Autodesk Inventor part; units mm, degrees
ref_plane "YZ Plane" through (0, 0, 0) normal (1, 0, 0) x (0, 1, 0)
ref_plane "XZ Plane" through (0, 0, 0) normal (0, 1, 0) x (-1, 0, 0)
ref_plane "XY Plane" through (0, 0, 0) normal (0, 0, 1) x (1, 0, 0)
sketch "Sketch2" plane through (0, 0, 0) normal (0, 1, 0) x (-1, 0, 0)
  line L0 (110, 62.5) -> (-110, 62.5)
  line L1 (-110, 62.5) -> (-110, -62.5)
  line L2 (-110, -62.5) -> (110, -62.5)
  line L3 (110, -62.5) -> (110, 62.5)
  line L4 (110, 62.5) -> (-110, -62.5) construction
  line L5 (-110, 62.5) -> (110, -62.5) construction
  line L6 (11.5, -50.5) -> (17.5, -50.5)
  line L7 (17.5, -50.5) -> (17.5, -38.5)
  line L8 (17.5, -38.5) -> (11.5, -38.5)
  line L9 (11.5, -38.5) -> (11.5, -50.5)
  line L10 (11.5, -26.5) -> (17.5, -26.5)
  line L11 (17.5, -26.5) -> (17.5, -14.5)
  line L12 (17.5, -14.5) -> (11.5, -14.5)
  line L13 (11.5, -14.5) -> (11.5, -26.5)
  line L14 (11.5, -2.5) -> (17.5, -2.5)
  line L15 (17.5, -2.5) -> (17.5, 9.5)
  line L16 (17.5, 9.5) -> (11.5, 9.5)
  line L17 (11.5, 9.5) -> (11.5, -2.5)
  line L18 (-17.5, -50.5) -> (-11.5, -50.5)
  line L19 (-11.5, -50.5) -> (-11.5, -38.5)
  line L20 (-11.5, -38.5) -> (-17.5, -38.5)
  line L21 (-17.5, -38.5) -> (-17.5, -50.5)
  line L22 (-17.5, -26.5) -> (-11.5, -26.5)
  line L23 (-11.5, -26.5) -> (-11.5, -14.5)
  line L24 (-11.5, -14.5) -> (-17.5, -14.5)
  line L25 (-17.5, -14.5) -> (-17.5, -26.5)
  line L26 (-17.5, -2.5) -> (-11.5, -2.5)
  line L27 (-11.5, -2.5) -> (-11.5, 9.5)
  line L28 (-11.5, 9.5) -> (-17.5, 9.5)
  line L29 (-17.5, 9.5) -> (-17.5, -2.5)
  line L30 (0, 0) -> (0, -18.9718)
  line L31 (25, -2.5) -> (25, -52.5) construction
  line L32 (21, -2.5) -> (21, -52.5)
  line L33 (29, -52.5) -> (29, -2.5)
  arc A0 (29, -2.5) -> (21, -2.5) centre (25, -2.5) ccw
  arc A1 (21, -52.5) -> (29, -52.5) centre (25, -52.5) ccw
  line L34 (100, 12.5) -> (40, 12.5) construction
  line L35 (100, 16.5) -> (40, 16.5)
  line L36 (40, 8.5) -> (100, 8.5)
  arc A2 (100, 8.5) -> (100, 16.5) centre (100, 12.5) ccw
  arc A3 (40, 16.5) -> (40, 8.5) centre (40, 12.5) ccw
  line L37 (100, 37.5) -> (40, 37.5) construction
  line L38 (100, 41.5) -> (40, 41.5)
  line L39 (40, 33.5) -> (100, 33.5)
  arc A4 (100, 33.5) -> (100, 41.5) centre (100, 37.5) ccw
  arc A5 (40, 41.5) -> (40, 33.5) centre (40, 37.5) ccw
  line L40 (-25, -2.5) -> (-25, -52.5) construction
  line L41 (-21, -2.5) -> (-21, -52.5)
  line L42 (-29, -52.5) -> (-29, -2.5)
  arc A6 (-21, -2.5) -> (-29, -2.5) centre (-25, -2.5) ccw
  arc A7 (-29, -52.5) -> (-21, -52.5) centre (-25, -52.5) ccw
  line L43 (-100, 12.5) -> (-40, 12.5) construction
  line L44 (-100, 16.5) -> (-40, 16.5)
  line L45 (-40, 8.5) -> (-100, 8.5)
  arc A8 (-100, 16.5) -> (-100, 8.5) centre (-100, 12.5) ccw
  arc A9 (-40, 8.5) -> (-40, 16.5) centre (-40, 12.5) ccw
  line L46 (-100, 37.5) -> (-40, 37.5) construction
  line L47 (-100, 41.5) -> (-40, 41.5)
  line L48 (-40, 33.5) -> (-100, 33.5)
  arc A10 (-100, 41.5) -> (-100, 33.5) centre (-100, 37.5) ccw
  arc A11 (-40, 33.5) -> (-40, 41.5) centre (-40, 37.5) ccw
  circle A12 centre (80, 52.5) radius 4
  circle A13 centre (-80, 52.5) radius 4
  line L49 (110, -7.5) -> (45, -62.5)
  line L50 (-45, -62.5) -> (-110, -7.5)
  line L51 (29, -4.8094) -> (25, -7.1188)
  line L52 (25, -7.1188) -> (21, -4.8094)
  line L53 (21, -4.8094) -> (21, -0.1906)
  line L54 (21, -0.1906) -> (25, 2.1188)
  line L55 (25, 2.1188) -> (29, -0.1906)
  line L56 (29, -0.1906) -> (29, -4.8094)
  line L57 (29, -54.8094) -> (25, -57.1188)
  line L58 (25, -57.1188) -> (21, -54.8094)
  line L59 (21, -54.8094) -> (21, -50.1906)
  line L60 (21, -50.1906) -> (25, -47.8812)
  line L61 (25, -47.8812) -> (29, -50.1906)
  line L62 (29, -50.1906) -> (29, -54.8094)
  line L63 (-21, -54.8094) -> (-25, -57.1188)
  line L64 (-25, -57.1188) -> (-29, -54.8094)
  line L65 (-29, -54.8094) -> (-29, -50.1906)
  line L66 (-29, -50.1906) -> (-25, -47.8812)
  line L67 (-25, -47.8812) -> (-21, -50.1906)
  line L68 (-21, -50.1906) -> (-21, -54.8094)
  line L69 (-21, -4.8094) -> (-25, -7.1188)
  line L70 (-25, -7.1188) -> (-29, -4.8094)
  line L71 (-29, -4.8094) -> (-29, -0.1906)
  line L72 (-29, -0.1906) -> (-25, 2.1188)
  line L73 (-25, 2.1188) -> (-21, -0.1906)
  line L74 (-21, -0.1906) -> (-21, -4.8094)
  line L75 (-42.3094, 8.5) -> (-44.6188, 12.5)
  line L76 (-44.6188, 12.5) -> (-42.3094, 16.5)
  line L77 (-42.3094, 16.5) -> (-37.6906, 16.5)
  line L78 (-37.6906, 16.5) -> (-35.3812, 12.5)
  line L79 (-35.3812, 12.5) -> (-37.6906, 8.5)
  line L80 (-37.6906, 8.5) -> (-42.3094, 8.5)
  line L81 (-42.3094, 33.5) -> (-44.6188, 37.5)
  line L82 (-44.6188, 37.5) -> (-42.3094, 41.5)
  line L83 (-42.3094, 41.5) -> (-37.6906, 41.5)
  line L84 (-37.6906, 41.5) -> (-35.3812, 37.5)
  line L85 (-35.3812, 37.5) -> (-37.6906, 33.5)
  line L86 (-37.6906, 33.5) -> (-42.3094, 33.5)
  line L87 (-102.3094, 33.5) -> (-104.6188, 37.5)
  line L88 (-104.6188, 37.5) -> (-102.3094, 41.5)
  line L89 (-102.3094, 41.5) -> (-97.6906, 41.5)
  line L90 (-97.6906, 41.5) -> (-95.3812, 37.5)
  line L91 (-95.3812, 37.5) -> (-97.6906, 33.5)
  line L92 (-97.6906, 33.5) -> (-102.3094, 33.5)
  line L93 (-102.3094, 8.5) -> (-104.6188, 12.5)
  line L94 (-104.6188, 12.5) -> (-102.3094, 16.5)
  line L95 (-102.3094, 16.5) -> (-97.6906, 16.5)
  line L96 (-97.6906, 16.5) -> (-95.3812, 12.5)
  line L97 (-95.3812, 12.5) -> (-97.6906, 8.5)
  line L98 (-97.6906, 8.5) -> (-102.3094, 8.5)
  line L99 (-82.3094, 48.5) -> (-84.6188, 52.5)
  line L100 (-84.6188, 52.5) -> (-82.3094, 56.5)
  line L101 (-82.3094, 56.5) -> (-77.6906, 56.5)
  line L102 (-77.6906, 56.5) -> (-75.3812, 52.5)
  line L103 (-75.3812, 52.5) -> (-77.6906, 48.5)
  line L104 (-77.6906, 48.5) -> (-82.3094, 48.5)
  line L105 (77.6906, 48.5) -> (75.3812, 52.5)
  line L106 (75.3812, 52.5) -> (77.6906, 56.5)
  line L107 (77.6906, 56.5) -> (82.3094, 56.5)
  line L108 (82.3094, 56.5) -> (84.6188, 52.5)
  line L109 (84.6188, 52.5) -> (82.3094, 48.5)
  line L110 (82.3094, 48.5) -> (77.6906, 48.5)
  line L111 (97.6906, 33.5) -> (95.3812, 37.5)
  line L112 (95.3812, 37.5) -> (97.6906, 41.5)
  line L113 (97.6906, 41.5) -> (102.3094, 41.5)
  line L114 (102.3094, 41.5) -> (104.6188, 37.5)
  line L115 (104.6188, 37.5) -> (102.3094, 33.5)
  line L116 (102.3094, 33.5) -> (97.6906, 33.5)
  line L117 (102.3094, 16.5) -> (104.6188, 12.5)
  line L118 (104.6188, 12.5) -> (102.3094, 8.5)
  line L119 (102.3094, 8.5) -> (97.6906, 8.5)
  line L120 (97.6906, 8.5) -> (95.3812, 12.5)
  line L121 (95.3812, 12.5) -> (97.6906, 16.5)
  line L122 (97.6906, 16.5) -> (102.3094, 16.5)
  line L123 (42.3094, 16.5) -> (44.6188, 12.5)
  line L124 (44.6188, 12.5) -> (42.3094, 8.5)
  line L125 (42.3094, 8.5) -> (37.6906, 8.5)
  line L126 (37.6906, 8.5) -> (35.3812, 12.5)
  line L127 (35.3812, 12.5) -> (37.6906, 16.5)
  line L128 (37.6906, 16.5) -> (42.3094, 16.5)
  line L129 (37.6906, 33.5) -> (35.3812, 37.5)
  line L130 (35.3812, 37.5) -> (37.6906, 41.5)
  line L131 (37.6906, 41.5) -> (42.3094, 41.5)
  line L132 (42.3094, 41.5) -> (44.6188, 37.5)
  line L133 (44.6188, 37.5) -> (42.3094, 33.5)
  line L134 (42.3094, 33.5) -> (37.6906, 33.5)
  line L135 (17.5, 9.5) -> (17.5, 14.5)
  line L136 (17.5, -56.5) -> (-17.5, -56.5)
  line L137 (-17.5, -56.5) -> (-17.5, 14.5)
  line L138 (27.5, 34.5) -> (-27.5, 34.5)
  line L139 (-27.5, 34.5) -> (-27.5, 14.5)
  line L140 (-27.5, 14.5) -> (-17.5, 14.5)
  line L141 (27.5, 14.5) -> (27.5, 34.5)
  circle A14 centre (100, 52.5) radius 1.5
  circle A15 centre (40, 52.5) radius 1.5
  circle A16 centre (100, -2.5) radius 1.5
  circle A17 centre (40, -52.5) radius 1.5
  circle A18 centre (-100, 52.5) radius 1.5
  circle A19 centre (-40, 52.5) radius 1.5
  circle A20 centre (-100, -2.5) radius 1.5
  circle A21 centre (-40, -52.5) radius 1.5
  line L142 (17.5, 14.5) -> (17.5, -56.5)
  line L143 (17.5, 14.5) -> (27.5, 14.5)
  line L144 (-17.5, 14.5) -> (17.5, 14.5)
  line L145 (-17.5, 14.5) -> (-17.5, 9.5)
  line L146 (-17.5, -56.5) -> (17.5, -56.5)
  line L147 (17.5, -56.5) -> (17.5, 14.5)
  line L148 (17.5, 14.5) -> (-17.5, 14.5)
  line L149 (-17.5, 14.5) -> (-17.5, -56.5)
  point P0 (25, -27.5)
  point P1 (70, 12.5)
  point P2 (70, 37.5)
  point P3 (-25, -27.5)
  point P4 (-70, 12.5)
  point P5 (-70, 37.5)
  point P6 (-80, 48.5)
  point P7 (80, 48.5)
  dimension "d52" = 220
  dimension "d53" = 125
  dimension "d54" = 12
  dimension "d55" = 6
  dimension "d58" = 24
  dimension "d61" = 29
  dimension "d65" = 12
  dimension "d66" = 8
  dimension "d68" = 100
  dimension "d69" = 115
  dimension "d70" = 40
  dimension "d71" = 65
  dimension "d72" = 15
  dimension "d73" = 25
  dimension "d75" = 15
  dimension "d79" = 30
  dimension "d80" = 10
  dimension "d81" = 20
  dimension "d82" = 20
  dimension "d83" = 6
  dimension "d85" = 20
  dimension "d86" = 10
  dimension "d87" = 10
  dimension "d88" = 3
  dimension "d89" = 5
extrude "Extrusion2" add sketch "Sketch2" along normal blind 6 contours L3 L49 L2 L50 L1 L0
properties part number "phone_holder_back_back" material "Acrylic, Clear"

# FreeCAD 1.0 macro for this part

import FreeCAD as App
import Part
import Sketcher
from FreeCAD import Vector
Q = App.Units.Quantity


def add_polygon(sketch, points):
    """Adds a closed chain of lines whose ends are joined by coincident constraints."""
    first, n = sketch.GeometryCount, len(points)
    for a, b in zip(points, points[1:] + points[:1]):
        sketch.addGeometry(Part.LineSegment(App.Vector(*a, 0), App.Vector(*b, 0)), False)
    for i in range(n):
        sketch.addConstraint(Sketcher.Constraint("Coincident", first + i, 2, first + (i + 1) % n, 1))

doc = App.newDocument("Part")
params = doc.addObject("Spreadsheet::Sheet", "Params")
for row, (alias, value) in enumerate([
    ("sketch1_diameter", "3 mm"),
    ("sketch1_width", "220 mm"),
    ("sketch1_width2", "10 mm"),
    ("sketch1_height", "20 mm"),
    ("sketch1_width3", "90 mm"),
    ("pad1_length", "6 mm"),
], start=1):
    params.set(f"A{row}", alias)
    params.set(f"B{row}", "=" + value)
    params.setAlias(f"B{row}", alias)

body = doc.addObject("PartDesign::Body", "Body")

sketch1 = body.newObject("Sketcher::SketchObject", "Sketch")
sketch1.AttachmentSupport = (doc.getObject("XZ_Plane"), [""])
sketch1.MapMode = "FlatFace"
add_polygon(sketch1, [(-110, -7.5), (-110, 62.5), (110, 62.5), (110, -7.5), (45, -62.5), (-45, -62.5)])
sketch1.addGeometry(Part.Circle(Vector(40, -52.5, 0), Vector(0, 0, 1), 1.5), False)
sketch1.addGeometry(Part.Circle(Vector(100, -2.5, 0), Vector(0, 0, 1), 1.5), False)
add_polygon(sketch1, [(21, -0.2), (21, -54.8), (25, -57.1), (29, -54.8), (29, -0.2), (25, 2.1)])
sketch1.addGeometry(Part.Circle(Vector(-40, -52.5, 0), Vector(0, 0, 1), 1.5), False)
add_polygon(sketch1, [(-21, -54.8), (-21, -0.2), (-25, 2.1), (-29, -0.2), (-29, -54.8), (-25, -57.1)])
add_polygon(sketch1, [(-17.5, 14.5), (-17.5, -56.5), (17.5, -56.5), (17.5, 14.5), (27.5, 14.5), (27.5, 34.5), (-27.5, 34.5), (-27.5, 14.5)])
sketch1.addGeometry(Part.Circle(Vector(-100, -2.5, 0), Vector(0, 0, 1), 1.5), False)
add_polygon(sketch1, [(102.3, 16.5), (37.7, 16.5), (35.4, 12.5), (37.7, 8.5), (102.3, 8.5), (104.6, 12.5)])
add_polygon(sketch1, [(102.3, 41.5), (37.7, 41.5), (35.4, 37.5), (37.7, 33.5), (102.3, 33.5), (104.6, 37.5)])
sketch1.addGeometry(Part.Circle(Vector(100, 52.5, 0), Vector(0, 0, 1), 1.5), False)
add_polygon(sketch1, [(77.7, 56.5), (75.4, 52.5), (77.7, 48.5), (82.3, 48.5), (84.6, 52.5), (82.3, 56.5)])
sketch1.addGeometry(Part.Circle(Vector(40, 52.5, 0), Vector(0, 0, 1), 1.5), False)
add_polygon(sketch1, [(-37.7, 16.5), (-102.3, 16.5), (-104.6, 12.5), (-102.3, 8.5), (-37.7, 8.5), (-35.4, 12.5)])
sketch1.addGeometry(Part.Circle(Vector(-40, 52.5, 0), Vector(0, 0, 1), 1.5), False)
add_polygon(sketch1, [(-37.7, 41.5), (-102.3, 41.5), (-104.6, 37.5), (-102.3, 33.5), (-37.7, 33.5), (-35.4, 37.5)])
add_polygon(sketch1, [(-82.3, 56.5), (-84.6, 52.5), (-82.3, 48.5), (-77.7, 48.5), (-75.4, 52.5), (-77.7, 56.5)])
sketch1.addGeometry(Part.Circle(Vector(-100, 52.5, 0), Vector(0, 0, 1), 1.5), False)
sketch1.addConstraint([
    Sketcher.Constraint("Vertical", 0),
    Sketcher.Constraint("Horizontal", 1),
    Sketcher.Constraint("Vertical", 2),
    Sketcher.Constraint("Horizontal", 4),
    Sketcher.Constraint("Vertical", 8),
    Sketcher.Constraint("Vertical", 11),
    Sketcher.Constraint("Vertical", 15),
    Sketcher.Constraint("Vertical", 18),
    Sketcher.Constraint("Vertical", 21),
    Sketcher.Constraint("Horizontal", 22),
    Sketcher.Constraint("Vertical", 23),
    Sketcher.Constraint("Horizontal", 24),
    Sketcher.Constraint("Vertical", 25),
    Sketcher.Constraint("Horizontal", 26),
    Sketcher.Constraint("Vertical", 27),
    Sketcher.Constraint("Horizontal", 28),
    Sketcher.Constraint("Horizontal", 30),
    Sketcher.Constraint("Horizontal", 33),
    Sketcher.Constraint("Horizontal", 36),
    Sketcher.Constraint("Horizontal", 39),
    Sketcher.Constraint("Horizontal", 45),
    Sketcher.Constraint("Horizontal", 48),
    Sketcher.Constraint("Horizontal", 50),
    Sketcher.Constraint("Horizontal", 53),
    Sketcher.Constraint("Horizontal", 57),
    Sketcher.Constraint("Horizontal", 60),
    Sketcher.Constraint("Horizontal", 65),
    Sketcher.Constraint("Horizontal", 68),
    Sketcher.Constraint("Equal", 6, 7),
    Sketcher.Constraint("Equal", 7, 14),
    Sketcher.Constraint("Equal", 14, 29),
    Sketcher.Constraint("Equal", 29, 42),
    Sketcher.Constraint("Equal", 42, 49),
    Sketcher.Constraint("Equal", 49, 56),
    Sketcher.Constraint("Equal", 56, 69),
    Sketcher.Constraint("Symmetric", 14, 3, 49, 3, -1, 1),
    Sketcher.Constraint("Symmetric", 6, 3, 56, 3, -1, 1),
    Sketcher.Constraint("Symmetric", 6, 3, 14, 3, -2),
    Sketcher.Constraint("Symmetric", 7, 3, 29, 3, -2),
    Sketcher.Constraint("Symmetric", 42, 3, 69, 3, -2),
    Sketcher.Constraint("Symmetric", 2, 2, 5, 2, -2),
    Sketcher.Constraint("Symmetric", 13, 2, 15, 2, -2),
    Sketcher.Constraint("Symmetric", 12, 2, 16, 2, -2),
    Sketcher.Constraint("Symmetric", 11, 2, 17, 2, -2),
    Sketcher.Constraint("Symmetric", 9, 2, 19, 2, -2),
    Sketcher.Constraint("Symmetric", 24, 2, 27, 2, -2),
    Sketcher.Constraint("Symmetric", 35, 2, 50, 2, -2),
    Sketcher.Constraint("Symmetric", 34, 2, 51, 2, -2),
    Sketcher.Constraint("Symmetric", 33, 2, 52, 2, -2),
    Sketcher.Constraint("Symmetric", 31, 2, 54, 2, -2),
    Sketcher.Constraint("Symmetric", 41, 2, 57, 2, -2),
    Sketcher.Constraint("Symmetric", 40, 2, 58, 2, -2),
    Sketcher.Constraint("Symmetric", 39, 2, 59, 2, -2),
    Sketcher.Constraint("Symmetric", 37, 2, 61, 2, -2),
    Sketcher.Constraint("Symmetric", 46, 2, 63, 2, -2),
    Sketcher.Constraint("Symmetric", 45, 2, 64, 2, -2),
    Sketcher.Constraint("Symmetric", 43, 2, 66, 2, -2),
    Sketcher.Constraint("Symmetric", 48, 2, 67, 2, -2),
    Sketcher.Constraint("Parallel", 9, 12),
    Sketcher.Constraint("Parallel", 10, 13),
    Sketcher.Constraint("Parallel", 12, 16),
    Sketcher.Constraint("Parallel", 16, 19),
    Sketcher.Constraint("Parallel", 17, 20),
    Sketcher.Constraint("Perpendicular", 19, 31),
    Sketcher.Constraint("Perpendicular", 20, 32),
    Sketcher.Constraint("Parallel", 31, 34),
    Sketcher.Constraint("Parallel", 32, 35),
    Sketcher.Constraint("Parallel", 34, 37),
    Sketcher.Constraint("Parallel", 35, 38),
    Sketcher.Constraint("Parallel", 37, 40),
    Sketcher.Constraint("Parallel", 38, 41),
    Sketcher.Constraint("Parallel", 40, 43),
    Sketcher.Constraint("Parallel", 41, 44),
    Sketcher.Constraint("Parallel", 43, 46),
    Sketcher.Constraint("Parallel", 44, 47),
    Sketcher.Constraint("Parallel", 51, 54),
    Sketcher.Constraint("Parallel", 52, 55),
    Sketcher.Constraint("Parallel", 58, 61),
    Sketcher.Constraint("Parallel", 59, 62),
    Sketcher.Constraint("Parallel", 61, 63),
    Sketcher.Constraint("Parallel", 63, 66),
    Sketcher.Constraint("Horizontal", 42, 3, 49, 3),
    Sketcher.Constraint("Horizontal", 8, 2, 10, 2),
    Sketcher.Constraint("Horizontal", 11, 2, 13, 2),
    Sketcher.Constraint("Horizontal", 31, 2, 34, 2),
    Sketcher.Constraint("Horizontal", 37, 2, 40, 2),
    Sketcher.Constraint("Horizontal", 69, 3, 43, 2),
    Sketcher.Constraint("Horizontal", 43, 2, 46, 2),
    Sketcher.Constraint("Vertical", 7, 3, 42, 3),
    Sketcher.Constraint("Vertical", 30, 2, 32, 2),
    Sketcher.Constraint("Vertical", 32, 2, 36, 2),
    Sketcher.Constraint("Vertical", 31, 2, 37, 2),
    Sketcher.Constraint("Vertical", 36, 2, 38, 2),
    Sketcher.Constraint("Vertical", 35, 2, 39, 2),
    Sketcher.Constraint("Vertical", 45, 2, 47, 2),
    Sketcher.Constraint("Equal", 24, 28),
    Sketcher.Constraint("Equal", 3, 5),
    Sketcher.Constraint("Equal", 20, 31),
    Sketcher.Constraint("Equal", 41, 43),
    Sketcher.Constraint("Diameter", 6, Q("3 mm")),
    Sketcher.Constraint("DistanceX", 1, 1, 1, 2, Q("220 mm")),
    Sketcher.Constraint("DistanceX", 24, 1, 24, 2, Q("10 mm")),
    Sketcher.Constraint("DistanceY", 25, 1, 25, 2, Q("20 mm")),
    Sketcher.Constraint("Angle", 9, Q("-30 deg")),
    Sketcher.Constraint("DistanceX", -1, 1, 6, 3, Q("40 mm")),
    Sketcher.Constraint("DistanceX", -1, 1, 7, 3, Q("100 mm")),
    Sketcher.Constraint("DistanceX", -1, 1, 9, 2, Q("25 mm")),
    Sketcher.Constraint("DistanceX", -1, 1, 10, 2, Q("29 mm")),
    Sketcher.Constraint("DistanceX", 4, 2, 4, 1, Q("90 mm")),
    Sketcher.Constraint("DistanceX", 22, 1, 22, 2, Q("35 mm")),
    Sketcher.Constraint("DistanceY", 0, 1, 0, 2, Q("70 mm")),
    Sketcher.Constraint("DistanceY", 21, 2, 21, 1, Q("71 mm")),
    Sketcher.Constraint("DistanceY", 6, 3, -1, 1, Q("52.5 mm")),
    Sketcher.Constraint("DistanceY", 7, 3, -1, 1, Q("2.5 mm")),
    Sketcher.Constraint("DistanceY", -1, 1, 0, 2, Q("62.5 mm")),
    Sketcher.Constraint("DistanceY", 3, 2, -1, 1, Q("62.5 mm")),
    Sketcher.Constraint("DistanceY", 21, 2, -1, 1, Q("56.5 mm")),
    Sketcher.Constraint("DistanceY", -1, 1, 30, 2, Q("16.5 mm")),
    Sketcher.Constraint("DistanceY", -1, 1, 36, 2, Q("41.5 mm")),
    Sketcher.Constraint("DistanceX", 30, 2, 30, 1, Q("64.6188 mm")),
    Sketcher.Constraint("DistanceX", 45, 1, 45, 2, Q("4.6188 mm")),
    Sketcher.Constraint("DistanceY", 8, 2, 8, 1, Q("54.6188 mm")),
    Sketcher.Constraint("DistanceY", 8, 2, -1, 1, Q("54.8094 mm")),
    Sketcher.Constraint("DistanceX", -1, 1, 30, 2, Q("37.6906 mm")),
    Sketcher.Constraint("DistanceX", -1, 1, 43, 2, Q("75.3812 mm")),
])
sketch1.setExpression("Constraints[161]", "Params.sketch1_diameter")
sketch1.setExpression("Constraints[162]", "Params.sketch1_width")
sketch1.setExpression("Constraints[163]", "Params.sketch1_width2")
sketch1.setExpression("Constraints[164]", "Params.sketch1_height")
sketch1.setExpression("Constraints[170]", "Params.sketch1_width3")
pad1 = body.newObject("PartDesign::Pad", "Pad")
pad1.Profile = sketch1
pad1.setExpression("Length", "Params.pad1_length")
pad1.Reversed = True

doc.recompute()
